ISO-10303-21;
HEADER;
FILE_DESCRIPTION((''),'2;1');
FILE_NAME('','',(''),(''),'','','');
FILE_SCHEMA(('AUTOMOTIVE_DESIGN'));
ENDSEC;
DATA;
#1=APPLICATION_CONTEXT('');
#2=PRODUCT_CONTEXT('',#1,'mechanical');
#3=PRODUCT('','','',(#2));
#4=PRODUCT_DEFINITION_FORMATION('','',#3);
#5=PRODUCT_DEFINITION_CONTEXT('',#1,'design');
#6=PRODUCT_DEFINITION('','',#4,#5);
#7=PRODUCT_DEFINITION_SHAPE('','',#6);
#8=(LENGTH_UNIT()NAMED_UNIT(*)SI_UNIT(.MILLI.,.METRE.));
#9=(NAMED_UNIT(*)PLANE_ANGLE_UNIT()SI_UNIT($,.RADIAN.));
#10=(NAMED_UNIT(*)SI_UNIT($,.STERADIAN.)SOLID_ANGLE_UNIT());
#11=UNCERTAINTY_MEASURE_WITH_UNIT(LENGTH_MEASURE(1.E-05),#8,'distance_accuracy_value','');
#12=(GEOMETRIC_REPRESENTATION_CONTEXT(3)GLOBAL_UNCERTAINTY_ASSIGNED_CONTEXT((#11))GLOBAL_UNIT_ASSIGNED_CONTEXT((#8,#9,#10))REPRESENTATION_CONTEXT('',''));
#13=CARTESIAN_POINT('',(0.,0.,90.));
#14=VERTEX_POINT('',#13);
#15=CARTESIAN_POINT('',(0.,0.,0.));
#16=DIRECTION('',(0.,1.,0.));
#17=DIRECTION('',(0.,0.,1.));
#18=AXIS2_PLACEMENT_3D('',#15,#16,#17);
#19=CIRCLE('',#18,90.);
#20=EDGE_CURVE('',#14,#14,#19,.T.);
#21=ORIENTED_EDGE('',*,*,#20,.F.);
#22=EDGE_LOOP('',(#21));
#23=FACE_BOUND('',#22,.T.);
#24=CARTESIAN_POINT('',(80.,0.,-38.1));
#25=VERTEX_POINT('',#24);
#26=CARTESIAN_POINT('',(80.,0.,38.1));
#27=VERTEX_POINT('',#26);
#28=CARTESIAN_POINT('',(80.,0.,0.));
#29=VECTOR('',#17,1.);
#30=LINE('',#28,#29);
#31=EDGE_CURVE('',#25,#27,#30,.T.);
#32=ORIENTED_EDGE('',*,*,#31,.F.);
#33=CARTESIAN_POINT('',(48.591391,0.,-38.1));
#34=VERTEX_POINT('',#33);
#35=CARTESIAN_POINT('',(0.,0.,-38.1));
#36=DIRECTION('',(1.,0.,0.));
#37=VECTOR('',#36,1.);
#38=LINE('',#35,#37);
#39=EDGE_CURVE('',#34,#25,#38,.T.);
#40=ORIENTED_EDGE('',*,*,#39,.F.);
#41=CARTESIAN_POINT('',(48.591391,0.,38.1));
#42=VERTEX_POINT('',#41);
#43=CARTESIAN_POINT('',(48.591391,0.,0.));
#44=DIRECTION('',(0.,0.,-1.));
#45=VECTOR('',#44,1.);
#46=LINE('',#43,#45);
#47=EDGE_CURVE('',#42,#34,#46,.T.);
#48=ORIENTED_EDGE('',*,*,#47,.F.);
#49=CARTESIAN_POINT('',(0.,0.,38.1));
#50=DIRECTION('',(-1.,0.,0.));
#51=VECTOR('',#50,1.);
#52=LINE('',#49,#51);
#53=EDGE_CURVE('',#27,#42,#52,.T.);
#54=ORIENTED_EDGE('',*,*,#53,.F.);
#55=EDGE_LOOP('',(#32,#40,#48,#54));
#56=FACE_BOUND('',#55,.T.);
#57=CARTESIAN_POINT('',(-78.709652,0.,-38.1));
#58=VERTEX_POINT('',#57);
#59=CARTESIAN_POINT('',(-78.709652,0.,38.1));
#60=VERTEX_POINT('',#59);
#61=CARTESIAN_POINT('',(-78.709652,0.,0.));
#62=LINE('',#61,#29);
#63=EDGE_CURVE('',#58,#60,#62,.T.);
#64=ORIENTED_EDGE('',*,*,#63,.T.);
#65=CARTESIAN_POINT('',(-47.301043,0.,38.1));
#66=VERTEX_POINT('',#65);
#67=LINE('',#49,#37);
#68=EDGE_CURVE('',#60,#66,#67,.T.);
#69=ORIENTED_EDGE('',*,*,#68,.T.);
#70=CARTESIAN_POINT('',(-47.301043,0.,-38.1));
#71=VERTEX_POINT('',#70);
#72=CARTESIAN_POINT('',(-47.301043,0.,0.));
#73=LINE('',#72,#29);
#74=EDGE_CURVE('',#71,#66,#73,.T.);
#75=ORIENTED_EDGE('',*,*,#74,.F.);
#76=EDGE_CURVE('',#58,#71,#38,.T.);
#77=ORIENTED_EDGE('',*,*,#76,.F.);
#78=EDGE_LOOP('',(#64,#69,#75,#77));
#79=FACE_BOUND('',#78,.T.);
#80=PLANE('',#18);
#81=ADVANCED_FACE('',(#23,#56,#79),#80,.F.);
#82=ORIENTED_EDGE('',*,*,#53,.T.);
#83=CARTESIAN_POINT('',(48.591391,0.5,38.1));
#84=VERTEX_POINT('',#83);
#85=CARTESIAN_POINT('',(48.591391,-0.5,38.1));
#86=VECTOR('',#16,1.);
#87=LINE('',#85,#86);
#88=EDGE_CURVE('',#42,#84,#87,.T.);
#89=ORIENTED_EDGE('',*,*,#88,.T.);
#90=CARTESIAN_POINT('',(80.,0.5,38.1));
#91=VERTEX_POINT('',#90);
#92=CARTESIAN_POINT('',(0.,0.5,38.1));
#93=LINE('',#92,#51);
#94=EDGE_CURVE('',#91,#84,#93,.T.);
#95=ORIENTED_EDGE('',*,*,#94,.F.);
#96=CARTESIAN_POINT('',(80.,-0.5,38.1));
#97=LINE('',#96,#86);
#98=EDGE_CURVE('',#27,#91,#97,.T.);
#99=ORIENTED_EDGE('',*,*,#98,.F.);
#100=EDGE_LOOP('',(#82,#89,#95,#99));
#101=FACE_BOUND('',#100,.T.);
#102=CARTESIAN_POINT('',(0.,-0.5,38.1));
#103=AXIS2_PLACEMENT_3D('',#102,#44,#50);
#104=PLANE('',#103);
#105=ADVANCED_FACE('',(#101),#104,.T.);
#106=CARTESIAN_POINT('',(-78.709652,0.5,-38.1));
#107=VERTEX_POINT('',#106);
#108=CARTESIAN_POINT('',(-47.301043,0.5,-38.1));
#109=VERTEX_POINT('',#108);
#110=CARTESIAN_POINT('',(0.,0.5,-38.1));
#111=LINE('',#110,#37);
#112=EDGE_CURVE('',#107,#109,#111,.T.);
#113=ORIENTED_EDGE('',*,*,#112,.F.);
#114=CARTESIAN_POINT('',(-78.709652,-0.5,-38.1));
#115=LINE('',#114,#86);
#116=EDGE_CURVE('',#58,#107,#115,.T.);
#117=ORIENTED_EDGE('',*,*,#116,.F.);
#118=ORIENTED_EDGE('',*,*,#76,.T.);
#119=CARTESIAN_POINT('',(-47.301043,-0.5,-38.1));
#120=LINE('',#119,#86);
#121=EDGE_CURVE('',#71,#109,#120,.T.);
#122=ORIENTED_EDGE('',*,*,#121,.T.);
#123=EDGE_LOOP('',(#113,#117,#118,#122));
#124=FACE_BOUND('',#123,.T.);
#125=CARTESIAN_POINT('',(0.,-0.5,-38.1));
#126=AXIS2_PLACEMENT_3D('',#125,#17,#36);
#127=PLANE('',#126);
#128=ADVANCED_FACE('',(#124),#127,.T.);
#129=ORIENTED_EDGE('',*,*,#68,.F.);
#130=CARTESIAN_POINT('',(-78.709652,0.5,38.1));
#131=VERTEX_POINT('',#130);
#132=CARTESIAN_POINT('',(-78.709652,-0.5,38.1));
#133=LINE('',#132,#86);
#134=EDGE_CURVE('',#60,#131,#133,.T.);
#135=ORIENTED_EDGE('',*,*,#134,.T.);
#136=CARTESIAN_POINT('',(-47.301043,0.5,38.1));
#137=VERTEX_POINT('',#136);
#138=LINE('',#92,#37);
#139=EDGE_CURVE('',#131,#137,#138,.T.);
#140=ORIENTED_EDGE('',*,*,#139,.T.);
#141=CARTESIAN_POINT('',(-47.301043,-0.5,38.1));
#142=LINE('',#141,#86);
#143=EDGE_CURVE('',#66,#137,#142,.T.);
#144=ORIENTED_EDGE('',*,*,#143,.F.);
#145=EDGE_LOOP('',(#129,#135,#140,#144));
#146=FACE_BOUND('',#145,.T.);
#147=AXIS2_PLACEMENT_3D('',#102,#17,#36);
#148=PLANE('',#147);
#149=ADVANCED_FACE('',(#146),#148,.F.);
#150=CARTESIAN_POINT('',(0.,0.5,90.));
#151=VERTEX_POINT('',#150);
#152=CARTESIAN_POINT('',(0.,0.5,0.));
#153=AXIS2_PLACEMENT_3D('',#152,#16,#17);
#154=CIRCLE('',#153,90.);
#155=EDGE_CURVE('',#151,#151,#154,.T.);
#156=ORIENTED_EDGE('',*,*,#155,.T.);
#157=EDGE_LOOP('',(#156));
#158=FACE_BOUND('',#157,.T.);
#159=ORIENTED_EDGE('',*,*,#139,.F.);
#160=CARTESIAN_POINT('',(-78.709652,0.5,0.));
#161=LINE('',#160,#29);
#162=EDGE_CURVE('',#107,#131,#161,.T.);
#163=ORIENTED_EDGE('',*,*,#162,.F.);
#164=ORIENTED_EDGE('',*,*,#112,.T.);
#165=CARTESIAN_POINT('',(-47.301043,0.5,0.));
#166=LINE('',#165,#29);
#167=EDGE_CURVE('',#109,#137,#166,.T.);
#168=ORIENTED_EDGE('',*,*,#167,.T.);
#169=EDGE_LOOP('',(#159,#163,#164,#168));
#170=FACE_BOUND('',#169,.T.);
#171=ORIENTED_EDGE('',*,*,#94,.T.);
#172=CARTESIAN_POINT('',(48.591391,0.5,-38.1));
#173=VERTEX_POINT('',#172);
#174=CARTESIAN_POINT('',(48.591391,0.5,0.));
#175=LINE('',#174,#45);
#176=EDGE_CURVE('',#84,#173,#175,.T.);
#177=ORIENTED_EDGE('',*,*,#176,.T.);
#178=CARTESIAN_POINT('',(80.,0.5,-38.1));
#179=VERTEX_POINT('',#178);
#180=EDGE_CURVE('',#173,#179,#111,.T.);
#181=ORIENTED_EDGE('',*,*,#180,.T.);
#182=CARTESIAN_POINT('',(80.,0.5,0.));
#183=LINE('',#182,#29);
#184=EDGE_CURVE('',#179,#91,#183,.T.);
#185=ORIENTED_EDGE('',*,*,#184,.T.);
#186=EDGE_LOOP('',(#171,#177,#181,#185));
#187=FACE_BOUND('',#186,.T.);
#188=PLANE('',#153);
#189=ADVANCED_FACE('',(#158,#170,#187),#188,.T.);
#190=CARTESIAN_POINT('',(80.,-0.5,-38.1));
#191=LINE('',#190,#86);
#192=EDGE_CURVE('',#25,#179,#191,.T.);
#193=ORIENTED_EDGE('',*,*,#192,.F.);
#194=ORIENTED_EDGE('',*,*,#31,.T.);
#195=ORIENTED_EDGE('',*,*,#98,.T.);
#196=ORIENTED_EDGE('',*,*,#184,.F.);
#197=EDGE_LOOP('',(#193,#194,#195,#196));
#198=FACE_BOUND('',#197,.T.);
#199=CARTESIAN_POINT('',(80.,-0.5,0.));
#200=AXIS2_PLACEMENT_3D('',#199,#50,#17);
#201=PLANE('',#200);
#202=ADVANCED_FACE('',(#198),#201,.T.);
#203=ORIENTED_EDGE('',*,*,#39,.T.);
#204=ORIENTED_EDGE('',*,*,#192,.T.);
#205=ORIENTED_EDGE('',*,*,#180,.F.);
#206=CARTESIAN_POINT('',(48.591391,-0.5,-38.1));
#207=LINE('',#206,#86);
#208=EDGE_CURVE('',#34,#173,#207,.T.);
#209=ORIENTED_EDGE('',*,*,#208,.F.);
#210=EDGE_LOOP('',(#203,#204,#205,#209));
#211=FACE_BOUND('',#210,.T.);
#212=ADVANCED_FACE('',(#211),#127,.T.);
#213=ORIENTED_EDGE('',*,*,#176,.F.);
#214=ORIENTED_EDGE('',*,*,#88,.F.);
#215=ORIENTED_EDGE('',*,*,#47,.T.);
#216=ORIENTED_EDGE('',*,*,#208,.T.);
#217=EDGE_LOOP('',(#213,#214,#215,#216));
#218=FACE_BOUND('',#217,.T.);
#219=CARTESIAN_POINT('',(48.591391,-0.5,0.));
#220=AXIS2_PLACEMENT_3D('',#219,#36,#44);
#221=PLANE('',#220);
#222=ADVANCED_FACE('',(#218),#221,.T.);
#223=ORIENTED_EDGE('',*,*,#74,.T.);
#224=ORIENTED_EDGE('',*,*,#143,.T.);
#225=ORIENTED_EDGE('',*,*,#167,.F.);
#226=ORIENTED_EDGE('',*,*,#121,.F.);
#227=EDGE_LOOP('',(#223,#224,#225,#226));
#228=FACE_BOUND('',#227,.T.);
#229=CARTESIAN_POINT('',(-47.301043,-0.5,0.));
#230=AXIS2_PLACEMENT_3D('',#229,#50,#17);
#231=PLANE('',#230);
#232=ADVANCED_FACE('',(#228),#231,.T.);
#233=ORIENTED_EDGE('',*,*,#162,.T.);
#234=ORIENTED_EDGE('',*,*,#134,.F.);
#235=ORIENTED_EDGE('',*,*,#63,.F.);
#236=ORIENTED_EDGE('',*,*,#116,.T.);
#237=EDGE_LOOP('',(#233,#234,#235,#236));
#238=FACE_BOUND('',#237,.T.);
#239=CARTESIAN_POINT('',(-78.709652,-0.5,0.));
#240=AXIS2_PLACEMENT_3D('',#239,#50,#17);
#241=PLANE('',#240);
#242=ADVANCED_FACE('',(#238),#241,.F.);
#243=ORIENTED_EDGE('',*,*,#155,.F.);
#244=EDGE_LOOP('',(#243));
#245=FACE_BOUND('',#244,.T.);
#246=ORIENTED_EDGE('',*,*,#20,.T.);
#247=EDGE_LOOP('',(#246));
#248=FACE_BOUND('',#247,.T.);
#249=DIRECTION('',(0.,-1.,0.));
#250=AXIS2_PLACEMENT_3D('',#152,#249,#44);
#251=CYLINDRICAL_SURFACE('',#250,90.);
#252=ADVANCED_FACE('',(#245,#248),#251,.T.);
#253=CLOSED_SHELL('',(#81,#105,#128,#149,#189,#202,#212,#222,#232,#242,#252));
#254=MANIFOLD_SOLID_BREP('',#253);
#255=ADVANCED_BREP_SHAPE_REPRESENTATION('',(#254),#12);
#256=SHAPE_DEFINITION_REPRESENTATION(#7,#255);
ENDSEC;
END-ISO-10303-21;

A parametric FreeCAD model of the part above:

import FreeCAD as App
import Part
import Sketcher

V = App.Vector


def add_polygon(sketch, points):
    """Adds a closed chain of lines whose ends are joined by coincident constraints."""
    first, n = sketch.GeometryCount, len(points)
    for a, b in zip(points, points[1:] + points[:1]):
        sketch.addGeometry(Part.LineSegment(App.Vector(*a, 0), App.Vector(*b, 0)), False)
    for i in range(n):
        sketch.addConstraint(Sketcher.Constraint("Coincident", first + i, 2, first + (i + 1) % n, 1))

doc = App.newDocument("Part")
body = doc.addObject("PartDesign::Body", "Body")

sketch1 = body.newObject("Sketcher::SketchObject", "Sketch")
sketch1.AttachmentSupport = (doc.getObject("XZ_Plane"), [""])
sketch1.MapMode = "FlatFace"
sketch1.addGeometry(Part.Circle(V(0, 0, 0), V(0, 0, 1), 90), False)
sketch1.addConstraint([
    Sketcher.Constraint("Coincident", 0, 3, -1, 1),
    Sketcher.Constraint("Diameter", 0, 180.0),
])
pad1 = body.newObject("PartDesign::Pad", "Pad")
pad1.Profile = sketch1
pad1.Length = 0.5
pad1.Reversed = True

sketch2 = body.newObject("Sketcher::SketchObject", "Sketch001")
sketch2.AttachmentSupport = (doc.getObject("XZ_Plane"), [""])
sketch2.MapMode = "FlatFace"
sketch2.AttachmentOffset = App.Placement(V(0, 0, -0.5), App.Rotation())
add_polygon(sketch2, [(49, -38), (49, 38), (80, 38), (80, -38)])
add_polygon(sketch2, [(-79, -38), (-79, 38), (-47, 38), (-47, -38)])
sketch2.addConstraint([
    Sketcher.Constraint("Vertical", 0),
    Sketcher.Constraint("Horizontal", 1),
    Sketcher.Constraint("Vertical", 2),
    Sketcher.Constraint("Horizontal", 3),
    Sketcher.Constraint("Vertical", 4),
    Sketcher.Constraint("Horizontal", 5),
    Sketcher.Constraint("Vertical", 6),
    Sketcher.Constraint("Horizontal", 7),
    Sketcher.Constraint("Horizontal", 1, 2, 4, 2),
    Sketcher.Constraint("Horizontal", 3, 2, 6, 2),
    Sketcher.Constraint("Equal", 3, 5),
    Sketcher.Constraint("DistanceY", 0, 1, 0, 2, 76.2),
    Sketcher.Constraint("DistanceX", -1, 1, 1, 2, 80.0),
    Sketcher.Constraint("DistanceY", -1, 1, 0, 2, 38.1),
    Sketcher.Constraint("DistanceX", 1, 1, 1, 2, 31.408609),
    Sketcher.Constraint("DistanceX", 4, 2, -1, 1, 78.709652),
])
pocket1 = body.newObject("PartDesign::Pocket", "Pocket")
pocket1.Profile = sketch2
pocket1.Length = 1
pocket1.Reversed = True

doc.recompute()
